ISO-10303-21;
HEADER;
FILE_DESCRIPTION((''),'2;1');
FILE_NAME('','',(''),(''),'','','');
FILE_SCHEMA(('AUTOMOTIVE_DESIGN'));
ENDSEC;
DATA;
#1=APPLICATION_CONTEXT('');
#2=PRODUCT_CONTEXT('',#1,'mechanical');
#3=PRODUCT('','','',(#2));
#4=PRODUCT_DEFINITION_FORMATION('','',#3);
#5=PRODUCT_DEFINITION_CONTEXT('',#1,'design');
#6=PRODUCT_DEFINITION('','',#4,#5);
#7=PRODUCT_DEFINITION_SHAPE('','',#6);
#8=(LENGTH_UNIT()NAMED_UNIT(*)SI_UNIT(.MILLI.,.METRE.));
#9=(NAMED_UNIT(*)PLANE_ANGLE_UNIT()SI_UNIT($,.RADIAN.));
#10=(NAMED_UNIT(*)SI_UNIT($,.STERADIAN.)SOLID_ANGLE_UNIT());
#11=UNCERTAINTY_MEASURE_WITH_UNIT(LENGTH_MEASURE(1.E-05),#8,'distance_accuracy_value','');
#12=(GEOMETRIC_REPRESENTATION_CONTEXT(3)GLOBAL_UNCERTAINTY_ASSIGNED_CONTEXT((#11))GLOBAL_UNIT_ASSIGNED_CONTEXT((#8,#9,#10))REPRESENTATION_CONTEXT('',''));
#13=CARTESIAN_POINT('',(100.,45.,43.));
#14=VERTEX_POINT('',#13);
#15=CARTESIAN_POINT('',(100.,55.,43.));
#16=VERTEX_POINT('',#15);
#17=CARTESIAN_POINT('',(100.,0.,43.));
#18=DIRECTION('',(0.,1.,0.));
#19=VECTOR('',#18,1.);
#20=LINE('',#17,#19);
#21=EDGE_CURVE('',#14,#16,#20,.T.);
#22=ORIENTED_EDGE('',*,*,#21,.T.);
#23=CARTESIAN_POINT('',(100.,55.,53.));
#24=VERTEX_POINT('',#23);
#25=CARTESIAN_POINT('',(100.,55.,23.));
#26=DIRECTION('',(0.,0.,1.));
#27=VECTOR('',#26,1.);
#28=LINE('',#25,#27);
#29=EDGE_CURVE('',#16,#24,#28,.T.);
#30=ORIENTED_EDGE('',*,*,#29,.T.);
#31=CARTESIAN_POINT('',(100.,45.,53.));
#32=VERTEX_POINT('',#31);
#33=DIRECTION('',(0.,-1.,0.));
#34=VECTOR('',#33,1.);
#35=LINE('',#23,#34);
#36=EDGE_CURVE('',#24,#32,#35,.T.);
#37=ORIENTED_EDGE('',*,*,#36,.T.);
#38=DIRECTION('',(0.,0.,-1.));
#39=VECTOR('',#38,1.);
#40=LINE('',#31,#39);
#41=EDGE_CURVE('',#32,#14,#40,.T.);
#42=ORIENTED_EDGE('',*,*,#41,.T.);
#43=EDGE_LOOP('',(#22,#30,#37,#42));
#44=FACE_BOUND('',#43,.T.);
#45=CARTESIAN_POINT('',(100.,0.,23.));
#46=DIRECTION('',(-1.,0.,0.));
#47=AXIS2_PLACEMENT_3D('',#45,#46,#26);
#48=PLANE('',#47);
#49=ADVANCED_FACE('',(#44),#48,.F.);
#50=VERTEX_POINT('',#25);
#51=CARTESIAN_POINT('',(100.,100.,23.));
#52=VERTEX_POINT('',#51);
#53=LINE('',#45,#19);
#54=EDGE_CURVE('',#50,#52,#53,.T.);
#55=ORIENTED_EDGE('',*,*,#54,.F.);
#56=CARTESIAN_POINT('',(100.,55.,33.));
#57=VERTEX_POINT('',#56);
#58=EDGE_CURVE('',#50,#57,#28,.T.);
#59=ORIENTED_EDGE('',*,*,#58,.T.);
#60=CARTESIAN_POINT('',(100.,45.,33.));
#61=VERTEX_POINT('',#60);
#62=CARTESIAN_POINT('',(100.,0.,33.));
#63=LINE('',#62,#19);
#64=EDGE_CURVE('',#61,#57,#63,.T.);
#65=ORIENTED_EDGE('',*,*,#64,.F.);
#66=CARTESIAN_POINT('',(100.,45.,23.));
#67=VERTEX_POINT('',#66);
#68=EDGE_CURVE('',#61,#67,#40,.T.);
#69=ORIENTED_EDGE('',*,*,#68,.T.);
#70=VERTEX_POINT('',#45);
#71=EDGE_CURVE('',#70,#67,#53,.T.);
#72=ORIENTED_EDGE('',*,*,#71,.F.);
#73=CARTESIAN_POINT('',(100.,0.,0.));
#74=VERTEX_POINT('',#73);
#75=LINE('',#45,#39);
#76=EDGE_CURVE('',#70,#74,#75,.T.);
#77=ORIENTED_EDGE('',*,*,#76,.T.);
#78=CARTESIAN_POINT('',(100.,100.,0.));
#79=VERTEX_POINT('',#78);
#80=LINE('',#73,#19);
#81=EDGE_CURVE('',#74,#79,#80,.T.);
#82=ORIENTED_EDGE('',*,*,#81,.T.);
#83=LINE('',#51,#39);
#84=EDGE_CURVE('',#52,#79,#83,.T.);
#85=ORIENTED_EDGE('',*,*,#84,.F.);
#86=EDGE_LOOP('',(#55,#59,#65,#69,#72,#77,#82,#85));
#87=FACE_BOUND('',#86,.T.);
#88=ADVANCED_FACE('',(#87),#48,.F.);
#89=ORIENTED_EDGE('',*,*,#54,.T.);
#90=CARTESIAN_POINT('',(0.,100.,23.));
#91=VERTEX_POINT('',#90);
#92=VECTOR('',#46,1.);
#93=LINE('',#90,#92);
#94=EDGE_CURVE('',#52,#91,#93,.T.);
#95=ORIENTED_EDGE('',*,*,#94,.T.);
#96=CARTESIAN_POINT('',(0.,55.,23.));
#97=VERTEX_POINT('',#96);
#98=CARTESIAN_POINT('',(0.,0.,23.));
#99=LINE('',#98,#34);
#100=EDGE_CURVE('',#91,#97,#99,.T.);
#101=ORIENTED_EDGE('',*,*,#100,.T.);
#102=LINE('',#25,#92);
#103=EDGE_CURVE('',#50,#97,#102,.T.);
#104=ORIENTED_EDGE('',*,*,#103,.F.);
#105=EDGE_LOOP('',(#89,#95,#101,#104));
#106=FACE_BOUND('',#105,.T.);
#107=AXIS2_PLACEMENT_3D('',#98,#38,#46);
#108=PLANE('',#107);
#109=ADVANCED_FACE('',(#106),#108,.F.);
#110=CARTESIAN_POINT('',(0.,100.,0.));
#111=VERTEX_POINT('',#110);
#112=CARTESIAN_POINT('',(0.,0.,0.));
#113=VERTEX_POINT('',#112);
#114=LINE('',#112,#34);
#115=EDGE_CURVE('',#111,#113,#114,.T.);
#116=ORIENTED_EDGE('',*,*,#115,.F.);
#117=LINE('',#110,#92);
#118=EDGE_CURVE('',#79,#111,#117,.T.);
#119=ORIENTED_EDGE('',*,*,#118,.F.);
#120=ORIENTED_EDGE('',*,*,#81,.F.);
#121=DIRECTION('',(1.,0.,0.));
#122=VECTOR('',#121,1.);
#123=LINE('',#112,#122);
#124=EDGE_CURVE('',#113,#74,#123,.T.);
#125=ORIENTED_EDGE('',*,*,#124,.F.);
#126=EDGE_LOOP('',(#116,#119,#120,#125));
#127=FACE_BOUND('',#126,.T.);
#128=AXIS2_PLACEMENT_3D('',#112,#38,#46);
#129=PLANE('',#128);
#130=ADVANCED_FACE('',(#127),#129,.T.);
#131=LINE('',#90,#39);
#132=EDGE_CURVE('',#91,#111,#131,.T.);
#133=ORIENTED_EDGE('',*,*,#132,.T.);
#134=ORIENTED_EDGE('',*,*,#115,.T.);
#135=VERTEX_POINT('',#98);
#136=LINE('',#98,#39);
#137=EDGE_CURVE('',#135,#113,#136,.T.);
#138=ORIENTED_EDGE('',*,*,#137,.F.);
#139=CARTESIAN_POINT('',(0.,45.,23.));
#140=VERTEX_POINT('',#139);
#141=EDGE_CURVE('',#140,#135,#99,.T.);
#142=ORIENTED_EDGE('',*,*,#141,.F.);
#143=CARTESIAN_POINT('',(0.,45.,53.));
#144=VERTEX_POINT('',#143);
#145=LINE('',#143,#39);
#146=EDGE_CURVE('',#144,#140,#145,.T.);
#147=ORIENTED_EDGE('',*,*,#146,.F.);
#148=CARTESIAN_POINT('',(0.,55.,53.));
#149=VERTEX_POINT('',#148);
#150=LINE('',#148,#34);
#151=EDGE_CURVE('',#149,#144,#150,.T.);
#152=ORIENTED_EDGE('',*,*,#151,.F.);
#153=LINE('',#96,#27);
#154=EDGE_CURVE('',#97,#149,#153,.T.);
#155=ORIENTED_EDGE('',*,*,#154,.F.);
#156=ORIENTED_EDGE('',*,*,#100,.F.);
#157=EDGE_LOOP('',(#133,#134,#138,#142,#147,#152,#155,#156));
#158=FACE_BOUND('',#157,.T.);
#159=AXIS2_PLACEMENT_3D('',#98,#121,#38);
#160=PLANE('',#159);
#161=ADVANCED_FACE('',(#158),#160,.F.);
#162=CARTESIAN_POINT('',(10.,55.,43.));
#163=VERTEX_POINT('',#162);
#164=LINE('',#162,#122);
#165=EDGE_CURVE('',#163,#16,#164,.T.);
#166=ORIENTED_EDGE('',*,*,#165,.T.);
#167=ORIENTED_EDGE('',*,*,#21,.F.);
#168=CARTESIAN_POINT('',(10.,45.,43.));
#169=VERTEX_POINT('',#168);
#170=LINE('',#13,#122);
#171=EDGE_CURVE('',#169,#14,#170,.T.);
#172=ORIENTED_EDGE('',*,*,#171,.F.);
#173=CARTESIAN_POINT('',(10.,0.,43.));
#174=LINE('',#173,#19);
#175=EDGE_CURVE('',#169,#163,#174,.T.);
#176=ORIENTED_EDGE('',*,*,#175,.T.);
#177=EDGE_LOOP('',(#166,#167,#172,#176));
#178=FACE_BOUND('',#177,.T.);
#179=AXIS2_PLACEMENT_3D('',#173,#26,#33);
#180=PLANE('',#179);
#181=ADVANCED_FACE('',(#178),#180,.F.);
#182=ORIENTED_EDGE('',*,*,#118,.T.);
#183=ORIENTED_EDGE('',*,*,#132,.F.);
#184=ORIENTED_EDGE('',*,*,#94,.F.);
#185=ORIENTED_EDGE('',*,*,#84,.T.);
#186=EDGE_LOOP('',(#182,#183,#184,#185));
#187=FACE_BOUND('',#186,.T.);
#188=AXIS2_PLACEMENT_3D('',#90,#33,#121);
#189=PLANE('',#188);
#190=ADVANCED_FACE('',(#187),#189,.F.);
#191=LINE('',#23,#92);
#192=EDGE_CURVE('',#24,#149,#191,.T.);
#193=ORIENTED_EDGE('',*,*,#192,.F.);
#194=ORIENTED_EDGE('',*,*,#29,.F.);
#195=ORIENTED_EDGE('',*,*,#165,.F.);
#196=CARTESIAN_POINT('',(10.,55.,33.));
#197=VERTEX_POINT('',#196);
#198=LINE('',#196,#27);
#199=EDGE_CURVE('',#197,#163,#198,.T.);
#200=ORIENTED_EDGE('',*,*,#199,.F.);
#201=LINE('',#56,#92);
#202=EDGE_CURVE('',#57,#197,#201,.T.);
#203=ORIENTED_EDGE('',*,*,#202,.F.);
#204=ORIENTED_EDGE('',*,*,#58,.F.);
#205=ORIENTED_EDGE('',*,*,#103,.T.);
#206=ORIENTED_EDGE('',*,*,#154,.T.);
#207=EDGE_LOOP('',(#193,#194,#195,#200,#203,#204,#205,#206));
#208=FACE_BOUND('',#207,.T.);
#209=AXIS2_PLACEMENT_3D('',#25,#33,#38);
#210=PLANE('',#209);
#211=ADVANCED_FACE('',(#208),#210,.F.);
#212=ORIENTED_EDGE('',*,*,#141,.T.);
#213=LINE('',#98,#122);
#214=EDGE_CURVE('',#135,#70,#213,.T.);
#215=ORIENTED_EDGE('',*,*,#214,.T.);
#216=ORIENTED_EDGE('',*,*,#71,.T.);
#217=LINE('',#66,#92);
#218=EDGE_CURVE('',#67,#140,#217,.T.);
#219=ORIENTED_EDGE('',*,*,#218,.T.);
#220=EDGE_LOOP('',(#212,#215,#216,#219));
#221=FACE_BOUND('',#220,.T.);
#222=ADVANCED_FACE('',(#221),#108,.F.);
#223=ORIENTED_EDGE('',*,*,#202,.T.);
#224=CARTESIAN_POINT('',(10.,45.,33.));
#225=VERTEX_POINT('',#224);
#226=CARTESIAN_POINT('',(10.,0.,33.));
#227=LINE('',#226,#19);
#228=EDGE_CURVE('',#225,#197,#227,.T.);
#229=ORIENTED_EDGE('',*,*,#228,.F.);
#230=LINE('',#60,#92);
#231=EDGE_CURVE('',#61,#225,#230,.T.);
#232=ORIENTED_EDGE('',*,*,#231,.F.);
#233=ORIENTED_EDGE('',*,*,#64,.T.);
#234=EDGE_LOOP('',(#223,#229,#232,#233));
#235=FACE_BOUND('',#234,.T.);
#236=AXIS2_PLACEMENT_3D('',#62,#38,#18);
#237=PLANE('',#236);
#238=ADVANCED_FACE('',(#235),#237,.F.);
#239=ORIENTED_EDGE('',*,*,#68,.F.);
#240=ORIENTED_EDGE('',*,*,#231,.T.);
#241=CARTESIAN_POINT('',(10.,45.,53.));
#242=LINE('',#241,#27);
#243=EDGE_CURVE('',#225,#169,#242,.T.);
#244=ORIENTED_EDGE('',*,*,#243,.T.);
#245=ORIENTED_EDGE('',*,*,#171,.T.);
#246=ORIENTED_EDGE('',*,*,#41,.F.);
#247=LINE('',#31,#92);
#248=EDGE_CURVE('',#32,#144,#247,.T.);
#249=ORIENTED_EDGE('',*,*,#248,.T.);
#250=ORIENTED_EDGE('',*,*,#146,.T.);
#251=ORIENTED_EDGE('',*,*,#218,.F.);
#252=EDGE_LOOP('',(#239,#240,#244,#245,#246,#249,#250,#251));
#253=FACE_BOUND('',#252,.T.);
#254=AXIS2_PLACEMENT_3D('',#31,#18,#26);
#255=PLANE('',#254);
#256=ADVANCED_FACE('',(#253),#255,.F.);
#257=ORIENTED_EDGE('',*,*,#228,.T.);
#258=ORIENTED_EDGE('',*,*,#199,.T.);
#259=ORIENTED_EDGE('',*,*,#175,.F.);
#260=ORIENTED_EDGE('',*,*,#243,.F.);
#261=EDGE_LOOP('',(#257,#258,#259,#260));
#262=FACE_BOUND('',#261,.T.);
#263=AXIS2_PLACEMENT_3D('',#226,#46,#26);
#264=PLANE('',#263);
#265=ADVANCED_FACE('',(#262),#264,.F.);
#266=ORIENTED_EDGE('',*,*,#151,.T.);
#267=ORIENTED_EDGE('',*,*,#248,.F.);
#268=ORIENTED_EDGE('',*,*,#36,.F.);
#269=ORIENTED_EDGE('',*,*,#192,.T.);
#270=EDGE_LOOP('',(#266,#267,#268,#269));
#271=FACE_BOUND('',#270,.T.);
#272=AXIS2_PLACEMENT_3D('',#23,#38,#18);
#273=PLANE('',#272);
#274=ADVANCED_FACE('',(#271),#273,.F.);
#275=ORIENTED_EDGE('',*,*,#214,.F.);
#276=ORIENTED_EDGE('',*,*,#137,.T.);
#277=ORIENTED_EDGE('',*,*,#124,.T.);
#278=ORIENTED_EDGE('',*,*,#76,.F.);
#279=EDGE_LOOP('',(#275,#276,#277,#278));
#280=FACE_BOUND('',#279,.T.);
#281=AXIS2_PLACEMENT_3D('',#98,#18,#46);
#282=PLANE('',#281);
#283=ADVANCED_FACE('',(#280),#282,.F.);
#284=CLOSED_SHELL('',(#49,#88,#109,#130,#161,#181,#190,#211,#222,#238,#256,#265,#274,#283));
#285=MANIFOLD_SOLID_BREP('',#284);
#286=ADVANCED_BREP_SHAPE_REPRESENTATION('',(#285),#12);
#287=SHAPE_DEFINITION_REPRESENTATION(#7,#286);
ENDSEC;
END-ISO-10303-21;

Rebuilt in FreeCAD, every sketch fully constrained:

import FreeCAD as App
import Part
import Sketcher
from FreeCAD import Vector
Q = App.Units.Quantity


def add_polygon(sketch, points):
    """Adds a closed chain of lines whose ends are joined by coincident constraints."""
    first, n = sketch.GeometryCount, len(points)
    for a, b in zip(points, points[1:] + points[:1]):
        sketch.addGeometry(Part.LineSegment(App.Vector(*a, 0), App.Vector(*b, 0)), False)
    for i in range(n):
        sketch.addConstraint(Sketcher.Constraint("Coincident", first + i, 2, first + (i + 1) % n, 1))

doc = App.newDocument("Part")
body = doc.addObject("PartDesign::Body", "Body")

sketch1 = body.newObject("Sketcher::SketchObject", "Sketch")
sketch1.AttachmentSupport = (doc.getObject("XY_Plane"), [""])
sketch1.MapMode = "FlatFace"
add_polygon(sketch1, [(0, 100), (0, 0), (100, 0), (100, 100)])
sketch1.addConstraint(Sketcher.Constraint("Vertical", 0))
sketch1.addConstraint(Sketcher.Constraint("Horizontal", 1))
sketch1.addConstraint(Sketcher.Constraint("Vertical", 2))
sketch1.addConstraint(Sketcher.Constraint("Horizontal", 3))
sketch1.addConstraint(Sketcher.Constraint("Coincident", 0, 2, -1, 1))
sketch1.addConstraint(Sketcher.Constraint("Equal", 3, 0))
sketch1.addConstraint(Sketcher.Constraint("DistanceX", 1, 1, 1, 2, Q("100 mm")))
pad1 = body.newObject("PartDesign::Pad", "Pad")
pad1.Profile = sketch1
pad1.Length = 23

sketch2 = body.newObject("Sketcher::SketchObject", "Sketch001")
sketch2.AttachmentSupport = (doc.getObject("YZ_Plane"), [""])
sketch2.MapMode = "FlatFace"
add_polygon(sketch2, [(55, 53), (45, 53), (45, 23), (55, 23)])
sketch2.addConstraint(Sketcher.Constraint("Horizontal", 0))
sketch2.addConstraint(Sketcher.Constraint("Vertical", 1))
sketch2.addConstraint(Sketcher.Constraint("Horizontal", 2))
sketch2.addConstraint(Sketcher.Constraint("Vertical", 3))
sketch2.addConstraint(Sketcher.Constraint("DistanceX", 0, 2, 0, 1, Q("10 mm")))
sketch2.addConstraint(Sketcher.Constraint("DistanceY", 1, 2, 1, 1, Q("30 mm")))
sketch2.addConstraint(Sketcher.Constraint("DistanceX", -1, 1, 0, 2, Q("45 mm")))
sketch2.addConstraint(Sketcher.Constraint("DistanceY", -1, 1, 0, 2, Q("53 mm")))
pad2 = body.newObject("PartDesign::Pad", "Pad001")
pad2.Profile = sketch2
pad2.Length = 100

sketch3 = body.newObject("Sketcher::SketchObject", "Sketch002")
sketch3.AttachmentSupport = (doc.getObject("XZ_Plane"), [""])
sketch3.MapMode = "FlatFace"
sketch3.AttachmentOffset = App.Placement(Vector(0, 0, -55), App.Rotation())
add_polygon(sketch3, [(10, 33), (10, 43), (100, 43), (100, 33)])
sketch3.addConstraint(Sketcher.Constraint("Vertical", 0))
sketch3.addConstraint(Sketcher.Constraint("Horizontal", 1))
sketch3.addConstraint(Sketcher.Constraint("Vertical", 2))
sketch3.addConstraint(Sketcher.Constraint("Horizontal", 3))
sketch3.addConstraint(Sketcher.Constraint("DistanceX", 1, 1, 1, 2, Q("90 mm")))
sketch3.addConstraint(Sketcher.Constraint("DistanceY", 0, 1, 0, 2, Q("10 mm")))
sketch3.addConstraint(Sketcher.Constraint("DistanceX", -1, 1, 0, 2, Q("10 mm")))
sketch3.addConstraint(Sketcher.Constraint("DistanceY", -1, 1, 0, 2, Q("43 mm")))
pocket1 = body.newObject("PartDesign::Pocket", "Pocket")
pocket1.Profile = sketch3
pocket1.Type = "ThroughAll"
pocket1.Reversed = True

doc.recompute()
